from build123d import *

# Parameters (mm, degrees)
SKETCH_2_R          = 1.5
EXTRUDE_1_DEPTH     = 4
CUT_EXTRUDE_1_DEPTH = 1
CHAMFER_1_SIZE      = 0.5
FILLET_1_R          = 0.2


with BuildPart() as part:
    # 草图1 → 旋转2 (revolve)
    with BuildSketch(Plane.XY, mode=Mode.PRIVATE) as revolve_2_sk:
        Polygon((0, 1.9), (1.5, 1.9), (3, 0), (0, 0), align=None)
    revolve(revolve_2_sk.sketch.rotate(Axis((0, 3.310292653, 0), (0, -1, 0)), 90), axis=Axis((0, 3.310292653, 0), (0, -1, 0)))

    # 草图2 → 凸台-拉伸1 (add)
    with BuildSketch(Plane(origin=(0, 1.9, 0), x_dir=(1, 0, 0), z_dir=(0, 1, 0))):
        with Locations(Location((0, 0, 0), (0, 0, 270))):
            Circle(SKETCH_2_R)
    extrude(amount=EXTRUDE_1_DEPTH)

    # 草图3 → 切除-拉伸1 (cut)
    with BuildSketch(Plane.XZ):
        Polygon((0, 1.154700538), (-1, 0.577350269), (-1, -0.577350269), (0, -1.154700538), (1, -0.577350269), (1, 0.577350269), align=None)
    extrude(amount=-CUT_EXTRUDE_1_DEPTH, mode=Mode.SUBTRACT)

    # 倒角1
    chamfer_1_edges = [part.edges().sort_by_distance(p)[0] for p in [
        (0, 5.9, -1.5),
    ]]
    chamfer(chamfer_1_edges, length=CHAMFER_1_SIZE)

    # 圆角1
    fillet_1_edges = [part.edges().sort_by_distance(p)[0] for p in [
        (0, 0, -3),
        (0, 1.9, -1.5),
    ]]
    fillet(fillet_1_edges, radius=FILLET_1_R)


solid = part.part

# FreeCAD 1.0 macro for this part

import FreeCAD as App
import Part
import Sketcher
from FreeCAD import Vector
Q = App.Units.Quantity


def edges_at(feature, points):
    """Names of the edges that pass closest to the given points."""
    edges = feature.Shape.Edges
    near = lambda p: min(range(len(edges)), key=lambda i: edges[i].distToShape(Part.Vertex(*p))[0])
    return sorted({f"Edge{near(p) + 1}" for p in points})


def add_polygon(sketch, points):
    """Adds a closed chain of lines whose ends are joined by coincident constraints."""
    first, n = sketch.GeometryCount, len(points)
    for a, b in zip(points, points[1:] + points[:1]):
        sketch.addGeometry(Part.LineSegment(App.Vector(*a, 0), App.Vector(*b, 0)), False)
    for i in range(n):
        sketch.addConstraint(Sketcher.Constraint("Coincident", first + i, 2, first + (i + 1) % n, 1))

doc = App.newDocument("Part")
body = doc.addObject("PartDesign::Body", "Body")

# Sketch on XY plane
sketch1 = doc.addObject("Sketcher::SketchObject", "Sketch")
body.addObject(sketch1)
sketch1.AttachmentSupport = (doc.XY_Plane, [""])
sketch1.MapMode = "FlatFace"
add_polygon(sketch1, [(1.5, 1.9), (0, 1.9), (0, 0), (3, 0)])  # lines 0-3
sketch1.addConstraint(Sketcher.Constraint("Horizontal", 0))
sketch1.addConstraint(Sketcher.Constraint("Vertical", 1))
sketch1.addConstraint(Sketcher.Constraint("Horizontal", 2))
sketch1.addConstraint(Sketcher.Constraint("Coincident", 1, 2, -1, 1))
sketch1.addConstraint(Sketcher.Constraint("DistanceX", 2, 1, 2, 2, 3.0))
sketch1.addConstraint(Sketcher.Constraint("DistanceX", 0, 2, 0, 1, 1.5))
sketch1.addConstraint(Sketcher.Constraint("DistanceY", 1, 2, 1, 1, 1.9))
revolution = doc.addObject("PartDesign::Revolution", "Revolution")
body.addObject(revolution)
revolution.Profile = sketch1
revolution.ReferenceAxis = (sketch1, ["V_Axis"])
revolution.Angle = 360

# Sketch on XZ plane
sketch2 = doc.addObject("Sketcher::SketchObject", "Sketch001")
body.addObject(sketch2)
sketch2.AttachmentSupport = (doc.XZ_Plane, [""])
sketch2.MapMode = "FlatFace"
sketch2.AttachmentOffset = App.Placement(Vector(0, 0, -1.9), App.Rotation())
sketch2.addGeometry(Part.Circle(Vector(0, 0, 0), Vector(0, 0, 1), 1.5), False)
sketch2.addConstraint(Sketcher.Constraint("Coincident", 0, 3, -1, 1))
sketch2.addConstraint(Sketcher.Constraint("Diameter", 0, 3.0))
pad1 = doc.addObject("PartDesign::Pad", "Pad")
body.addObject(pad1)
pad1.Profile = sketch2
pad1.Length = 4
pad1.Reversed = True

# Sketch on XZ plane
sketch3 = doc.addObject("Sketcher::SketchObject", "Sketch002")
body.addObject(sketch3)
sketch3.AttachmentSupport = (doc.XZ_Plane, [""])
sketch3.MapMode = "FlatFace"
add_polygon(sketch3, [(0, 1.2), (-1, 0.6), (-1, -0.6), (0, -1.2), (1, -0.6), (1, 0.6)])  # lines 0-5
sketch3.addConstraint(Sketcher.Constraint("Vertical", 1))
sketch3.addConstraint(Sketcher.Constraint("Vertical", 4))
sketch3.addConstraint(Sketcher.Constraint("Symmetric", 0, 2, 3, 2, -1, 1))
sketch3.addConstraint(Sketcher.Constraint("Symmetric", 2, 2, 5, 2, -1, 1))
sketch3.addConstraint(Sketcher.Constraint("PointOnObject", 2, 2, -2))
sketch3.addConstraint(Sketcher.Constraint("Parallel", 2, 5))
sketch3.addConstraint(Sketcher.Constraint("Horizontal", 1, 2, 3, 2))
sketch3.addConstraint(Sketcher.Constraint("Angle", 0, Q("-150 deg")))
sketch3.addConstraint(Sketcher.Constraint("DistanceX", 0, 2, -1, 1, 1.0))
sketch3.addConstraint(Sketcher.Constraint("DistanceY", 1, 2, 1, 1, 1.154701))
pocket1 = doc.addObject("PartDesign::Pocket", "Pocket")
body.addObject(pocket1)
pocket1.Profile = sketch3
pocket1.Length = 1
doc.recompute()

chamfer = doc.addObject("PartDesign::Chamfer", "Chamfer")
body.addObject(chamfer)
chamfer.Base = (pocket1, edges_at(pocket1, [(0, 5.9, -1.5)]))
chamfer.Size = 0.5
doc.recompute()

fillet = doc.addObject("PartDesign::Fillet", "Fillet")
body.addObject(fillet)
fillet.Base = (chamfer, edges_at(chamfer, [(0, 0, -3), (0, 1.9, -1.5)]))
fillet.Radius = 0.2

doc.recompute()
